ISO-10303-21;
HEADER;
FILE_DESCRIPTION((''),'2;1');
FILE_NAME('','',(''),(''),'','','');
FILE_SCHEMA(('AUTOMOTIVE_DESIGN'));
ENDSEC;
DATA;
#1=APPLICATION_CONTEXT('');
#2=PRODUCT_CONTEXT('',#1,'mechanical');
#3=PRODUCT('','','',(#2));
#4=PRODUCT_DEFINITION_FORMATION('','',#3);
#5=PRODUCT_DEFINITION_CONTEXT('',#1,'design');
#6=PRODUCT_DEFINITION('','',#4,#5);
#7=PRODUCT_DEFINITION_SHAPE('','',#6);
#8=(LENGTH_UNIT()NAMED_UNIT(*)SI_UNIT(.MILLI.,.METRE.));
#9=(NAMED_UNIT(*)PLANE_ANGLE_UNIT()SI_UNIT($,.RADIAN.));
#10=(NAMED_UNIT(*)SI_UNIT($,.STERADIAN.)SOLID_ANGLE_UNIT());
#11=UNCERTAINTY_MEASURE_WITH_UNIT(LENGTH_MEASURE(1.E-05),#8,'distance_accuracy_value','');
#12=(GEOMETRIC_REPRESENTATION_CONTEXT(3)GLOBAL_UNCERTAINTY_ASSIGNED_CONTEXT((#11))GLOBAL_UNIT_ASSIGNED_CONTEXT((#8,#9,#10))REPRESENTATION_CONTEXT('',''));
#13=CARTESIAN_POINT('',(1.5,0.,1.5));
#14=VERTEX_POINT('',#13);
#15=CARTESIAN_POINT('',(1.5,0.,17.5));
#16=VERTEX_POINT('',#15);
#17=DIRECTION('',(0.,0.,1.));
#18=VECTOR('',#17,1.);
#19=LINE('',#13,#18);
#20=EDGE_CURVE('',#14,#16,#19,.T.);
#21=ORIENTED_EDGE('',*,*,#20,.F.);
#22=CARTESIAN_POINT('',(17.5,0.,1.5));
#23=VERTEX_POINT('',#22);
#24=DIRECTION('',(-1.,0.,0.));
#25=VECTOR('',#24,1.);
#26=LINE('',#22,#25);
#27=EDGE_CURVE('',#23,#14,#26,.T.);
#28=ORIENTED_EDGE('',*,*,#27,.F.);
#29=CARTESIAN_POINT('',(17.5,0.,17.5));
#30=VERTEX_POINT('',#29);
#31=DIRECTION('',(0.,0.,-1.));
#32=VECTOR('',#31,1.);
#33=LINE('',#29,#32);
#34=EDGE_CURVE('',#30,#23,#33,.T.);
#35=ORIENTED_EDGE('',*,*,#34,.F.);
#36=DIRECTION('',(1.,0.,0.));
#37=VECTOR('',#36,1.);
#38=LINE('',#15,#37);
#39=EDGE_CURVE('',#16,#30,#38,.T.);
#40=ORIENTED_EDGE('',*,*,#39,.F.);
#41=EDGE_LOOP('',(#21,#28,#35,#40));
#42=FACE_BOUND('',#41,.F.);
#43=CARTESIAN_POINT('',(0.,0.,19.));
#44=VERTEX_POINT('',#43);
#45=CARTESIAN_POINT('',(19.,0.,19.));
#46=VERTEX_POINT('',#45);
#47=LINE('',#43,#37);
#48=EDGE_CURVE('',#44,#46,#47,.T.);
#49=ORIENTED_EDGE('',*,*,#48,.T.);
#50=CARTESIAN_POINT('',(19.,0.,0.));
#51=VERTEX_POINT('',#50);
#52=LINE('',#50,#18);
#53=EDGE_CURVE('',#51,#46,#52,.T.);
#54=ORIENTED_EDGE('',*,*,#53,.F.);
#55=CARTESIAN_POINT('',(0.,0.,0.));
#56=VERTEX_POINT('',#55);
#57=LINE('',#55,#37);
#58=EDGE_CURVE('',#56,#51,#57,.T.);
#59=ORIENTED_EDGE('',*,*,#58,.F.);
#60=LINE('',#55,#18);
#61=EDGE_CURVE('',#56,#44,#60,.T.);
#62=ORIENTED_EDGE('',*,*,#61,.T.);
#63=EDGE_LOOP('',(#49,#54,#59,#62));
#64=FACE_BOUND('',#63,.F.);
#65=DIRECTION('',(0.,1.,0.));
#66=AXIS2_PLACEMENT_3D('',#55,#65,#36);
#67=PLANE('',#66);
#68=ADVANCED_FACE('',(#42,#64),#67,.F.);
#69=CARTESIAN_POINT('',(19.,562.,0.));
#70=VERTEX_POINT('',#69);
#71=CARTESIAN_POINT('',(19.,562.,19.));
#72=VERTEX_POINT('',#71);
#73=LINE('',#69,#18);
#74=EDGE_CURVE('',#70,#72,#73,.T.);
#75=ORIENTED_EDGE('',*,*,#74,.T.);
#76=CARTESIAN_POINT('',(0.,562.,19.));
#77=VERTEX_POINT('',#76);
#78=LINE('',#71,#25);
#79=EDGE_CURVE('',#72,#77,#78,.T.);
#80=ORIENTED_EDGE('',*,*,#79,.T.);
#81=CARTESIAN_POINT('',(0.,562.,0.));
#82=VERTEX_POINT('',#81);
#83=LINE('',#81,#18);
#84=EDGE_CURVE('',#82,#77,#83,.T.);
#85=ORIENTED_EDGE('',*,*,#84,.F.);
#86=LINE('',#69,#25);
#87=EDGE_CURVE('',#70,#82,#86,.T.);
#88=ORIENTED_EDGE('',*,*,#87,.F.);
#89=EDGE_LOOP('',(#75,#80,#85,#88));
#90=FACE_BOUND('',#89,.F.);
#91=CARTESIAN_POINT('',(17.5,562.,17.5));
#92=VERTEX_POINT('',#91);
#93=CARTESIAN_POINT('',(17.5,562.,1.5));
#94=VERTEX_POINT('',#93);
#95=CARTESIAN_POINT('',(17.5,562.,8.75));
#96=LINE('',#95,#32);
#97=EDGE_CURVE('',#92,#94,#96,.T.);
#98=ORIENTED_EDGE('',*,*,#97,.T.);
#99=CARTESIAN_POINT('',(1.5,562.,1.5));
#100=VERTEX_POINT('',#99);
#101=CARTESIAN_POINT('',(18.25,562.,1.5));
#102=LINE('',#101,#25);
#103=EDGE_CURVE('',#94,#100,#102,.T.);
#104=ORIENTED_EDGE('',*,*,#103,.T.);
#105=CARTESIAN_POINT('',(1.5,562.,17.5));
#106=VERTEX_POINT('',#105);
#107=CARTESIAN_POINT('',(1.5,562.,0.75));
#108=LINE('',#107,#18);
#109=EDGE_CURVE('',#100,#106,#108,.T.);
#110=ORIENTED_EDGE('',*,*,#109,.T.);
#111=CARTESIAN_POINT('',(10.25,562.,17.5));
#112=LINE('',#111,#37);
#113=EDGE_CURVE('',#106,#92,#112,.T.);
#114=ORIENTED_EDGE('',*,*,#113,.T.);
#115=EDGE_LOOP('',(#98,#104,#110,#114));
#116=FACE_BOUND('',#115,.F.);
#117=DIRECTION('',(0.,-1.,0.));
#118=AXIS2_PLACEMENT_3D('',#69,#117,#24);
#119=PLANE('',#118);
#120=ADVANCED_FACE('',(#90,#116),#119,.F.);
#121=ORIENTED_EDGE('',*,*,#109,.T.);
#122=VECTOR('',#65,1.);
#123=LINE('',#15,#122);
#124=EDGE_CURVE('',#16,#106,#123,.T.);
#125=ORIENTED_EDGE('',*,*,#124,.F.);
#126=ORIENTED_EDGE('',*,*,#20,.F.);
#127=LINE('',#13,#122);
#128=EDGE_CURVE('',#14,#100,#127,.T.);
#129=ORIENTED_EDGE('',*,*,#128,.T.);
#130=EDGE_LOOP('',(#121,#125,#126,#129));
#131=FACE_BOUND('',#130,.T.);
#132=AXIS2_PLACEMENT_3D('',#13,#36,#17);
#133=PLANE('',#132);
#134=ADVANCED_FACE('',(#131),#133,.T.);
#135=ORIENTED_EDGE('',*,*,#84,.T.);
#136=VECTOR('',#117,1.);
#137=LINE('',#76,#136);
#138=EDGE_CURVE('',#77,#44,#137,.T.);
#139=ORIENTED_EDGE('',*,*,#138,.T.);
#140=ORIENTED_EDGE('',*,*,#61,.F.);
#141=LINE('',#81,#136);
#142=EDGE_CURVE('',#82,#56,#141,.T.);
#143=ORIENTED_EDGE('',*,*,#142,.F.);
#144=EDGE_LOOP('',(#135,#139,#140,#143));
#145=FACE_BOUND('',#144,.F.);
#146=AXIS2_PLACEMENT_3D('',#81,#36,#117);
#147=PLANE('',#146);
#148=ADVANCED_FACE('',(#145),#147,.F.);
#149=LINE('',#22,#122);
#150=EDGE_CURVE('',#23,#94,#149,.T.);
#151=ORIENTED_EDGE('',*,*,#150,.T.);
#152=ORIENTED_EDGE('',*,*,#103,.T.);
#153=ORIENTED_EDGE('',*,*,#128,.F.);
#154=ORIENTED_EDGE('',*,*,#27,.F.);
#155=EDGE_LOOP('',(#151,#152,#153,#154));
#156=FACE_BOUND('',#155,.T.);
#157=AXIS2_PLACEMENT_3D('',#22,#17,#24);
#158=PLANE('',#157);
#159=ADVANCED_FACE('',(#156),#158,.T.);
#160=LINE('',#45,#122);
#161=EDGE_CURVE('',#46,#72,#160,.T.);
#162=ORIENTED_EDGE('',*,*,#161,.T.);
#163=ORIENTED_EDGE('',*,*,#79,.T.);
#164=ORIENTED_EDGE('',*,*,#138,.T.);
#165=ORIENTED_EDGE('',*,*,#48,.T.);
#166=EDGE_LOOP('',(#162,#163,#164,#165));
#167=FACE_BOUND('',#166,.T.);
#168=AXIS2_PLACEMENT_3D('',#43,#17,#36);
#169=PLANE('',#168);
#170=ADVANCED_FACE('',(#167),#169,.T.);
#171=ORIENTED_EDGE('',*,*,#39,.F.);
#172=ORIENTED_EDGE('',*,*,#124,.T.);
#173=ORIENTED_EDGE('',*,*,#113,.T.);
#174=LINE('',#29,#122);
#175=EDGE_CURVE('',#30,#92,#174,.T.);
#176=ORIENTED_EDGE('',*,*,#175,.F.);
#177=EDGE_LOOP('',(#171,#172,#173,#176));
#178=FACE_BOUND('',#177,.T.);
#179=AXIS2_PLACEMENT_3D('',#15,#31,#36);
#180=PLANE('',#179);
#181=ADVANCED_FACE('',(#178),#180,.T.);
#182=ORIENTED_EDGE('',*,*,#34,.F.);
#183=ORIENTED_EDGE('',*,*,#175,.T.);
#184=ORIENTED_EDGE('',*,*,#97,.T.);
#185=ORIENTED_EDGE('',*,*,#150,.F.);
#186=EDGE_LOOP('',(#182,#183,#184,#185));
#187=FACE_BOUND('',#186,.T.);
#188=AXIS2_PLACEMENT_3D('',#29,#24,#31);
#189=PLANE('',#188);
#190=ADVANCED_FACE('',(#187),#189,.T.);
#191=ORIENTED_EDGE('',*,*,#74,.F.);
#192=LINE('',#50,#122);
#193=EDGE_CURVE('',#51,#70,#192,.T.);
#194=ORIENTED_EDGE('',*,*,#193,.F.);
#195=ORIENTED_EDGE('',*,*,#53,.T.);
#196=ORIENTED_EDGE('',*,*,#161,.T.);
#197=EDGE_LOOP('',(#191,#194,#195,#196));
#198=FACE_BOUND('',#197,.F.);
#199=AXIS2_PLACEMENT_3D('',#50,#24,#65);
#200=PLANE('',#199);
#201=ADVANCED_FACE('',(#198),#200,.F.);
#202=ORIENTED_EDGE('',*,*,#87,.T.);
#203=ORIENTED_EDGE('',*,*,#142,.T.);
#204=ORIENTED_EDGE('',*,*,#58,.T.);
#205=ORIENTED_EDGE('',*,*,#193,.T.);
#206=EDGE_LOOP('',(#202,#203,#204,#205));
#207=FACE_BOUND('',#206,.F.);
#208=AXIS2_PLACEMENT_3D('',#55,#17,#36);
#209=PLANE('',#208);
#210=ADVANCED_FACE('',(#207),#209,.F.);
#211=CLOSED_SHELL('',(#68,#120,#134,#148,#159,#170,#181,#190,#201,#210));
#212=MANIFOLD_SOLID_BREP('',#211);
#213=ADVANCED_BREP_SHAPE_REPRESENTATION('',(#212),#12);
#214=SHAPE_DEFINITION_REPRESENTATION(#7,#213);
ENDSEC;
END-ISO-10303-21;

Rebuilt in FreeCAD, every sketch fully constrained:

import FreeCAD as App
import Part
import Sketcher
Q = App.Units.Quantity

doc = App.newDocument("Part")
body = doc.addObject("PartDesign::Body", "Body")

# Sketch on XY plane
sketch1 = body.newObject("Sketcher::SketchObject", "Sketch")
sketch1.AttachmentSupport = (doc.getObject("XY_Plane"), [""])
sketch1.MapMode = "FlatFace"
sketch1.addGeometry([
    Part.LineSegment(App.Vector(0, 562, 0), App.Vector(0, 0, 0)),
    Part.LineSegment(App.Vector(0, 0, 0), App.Vector(19, 0, 0)),
    Part.LineSegment(App.Vector(19, 0, 0), App.Vector(19, 562, 0)),
    Part.LineSegment(App.Vector(19, 562, 0), App.Vector(0, 562, 0)),
], False)
sketch1.addConstraint([
    Sketcher.Constraint("Coincident", 0, 2, 1, 1),
    Sketcher.Constraint("Coincident", 1, 2, 2, 1),
    Sketcher.Constraint("Coincident", 2, 2, 3, 1),
    Sketcher.Constraint("Coincident", 3, 2, 0, 1),
    Sketcher.Constraint("Vertical", 0),
    Sketcher.Constraint("Horizontal", 1),
    Sketcher.Constraint("Vertical", 2),
    Sketcher.Constraint("Horizontal", 3),
    Sketcher.Constraint("Coincident", 0, 2, -1, 1),
    Sketcher.Constraint("DistanceX", 1, 1, 1, 2, Q("19 mm")),
    Sketcher.Constraint("DistanceY", 0, 2, 0, 1, Q("562 mm")),
])
pad1 = body.newObject("PartDesign::Pad", "Pad")
pad1.Profile = sketch1
pad1.Length = 19

# Sketch on XZ plane
sketch2 = body.newObject("Sketcher::SketchObject", "Sketch001")
sketch2.AttachmentSupport = (doc.getObject("XZ_Plane"), [""])
sketch2.MapMode = "FlatFace"
sketch2.addGeometry([
    Part.LineSegment(App.Vector(18, 2, 0), App.Vector(18, 18, 0)),
    Part.LineSegment(App.Vector(18, 18, 0), App.Vector(2, 18, 0)),
    Part.LineSegment(App.Vector(2, 18, 0), App.Vector(2, 2, 0)),
    Part.LineSegment(App.Vector(2, 2, 0), App.Vector(18, 2, 0)),
], False)
sketch2.addConstraint([
    Sketcher.Constraint("Coincident", 0, 2, 1, 1),
    Sketcher.Constraint("Coincident", 1, 2, 2, 1),
    Sketcher.Constraint("Coincident", 2, 2, 3, 1),
    Sketcher.Constraint("Coincident", 3, 2, 0, 1),
    Sketcher.Constraint("Vertical", 0),
    Sketcher.Constraint("Horizontal", 1),
    Sketcher.Constraint("Vertical", 2),
    Sketcher.Constraint("Horizontal", 3),
    Sketcher.Constraint("Equal", 3, 0),
    Sketcher.Constraint("DistanceX", -1, 1, 1, 2, Q("1.5 mm")),
    Sketcher.Constraint("DistanceY", -1, 1, 2, 2, Q("1.5 mm")),
    Sketcher.Constraint("DistanceX", 1, 2, 1, 1, Q("16 mm")),
])
pocket1 = body.newObject("PartDesign::Pocket", "Pocket")
pocket1.Profile = sketch2
pocket1.Type = "ThroughAll"

doc.recompute()
